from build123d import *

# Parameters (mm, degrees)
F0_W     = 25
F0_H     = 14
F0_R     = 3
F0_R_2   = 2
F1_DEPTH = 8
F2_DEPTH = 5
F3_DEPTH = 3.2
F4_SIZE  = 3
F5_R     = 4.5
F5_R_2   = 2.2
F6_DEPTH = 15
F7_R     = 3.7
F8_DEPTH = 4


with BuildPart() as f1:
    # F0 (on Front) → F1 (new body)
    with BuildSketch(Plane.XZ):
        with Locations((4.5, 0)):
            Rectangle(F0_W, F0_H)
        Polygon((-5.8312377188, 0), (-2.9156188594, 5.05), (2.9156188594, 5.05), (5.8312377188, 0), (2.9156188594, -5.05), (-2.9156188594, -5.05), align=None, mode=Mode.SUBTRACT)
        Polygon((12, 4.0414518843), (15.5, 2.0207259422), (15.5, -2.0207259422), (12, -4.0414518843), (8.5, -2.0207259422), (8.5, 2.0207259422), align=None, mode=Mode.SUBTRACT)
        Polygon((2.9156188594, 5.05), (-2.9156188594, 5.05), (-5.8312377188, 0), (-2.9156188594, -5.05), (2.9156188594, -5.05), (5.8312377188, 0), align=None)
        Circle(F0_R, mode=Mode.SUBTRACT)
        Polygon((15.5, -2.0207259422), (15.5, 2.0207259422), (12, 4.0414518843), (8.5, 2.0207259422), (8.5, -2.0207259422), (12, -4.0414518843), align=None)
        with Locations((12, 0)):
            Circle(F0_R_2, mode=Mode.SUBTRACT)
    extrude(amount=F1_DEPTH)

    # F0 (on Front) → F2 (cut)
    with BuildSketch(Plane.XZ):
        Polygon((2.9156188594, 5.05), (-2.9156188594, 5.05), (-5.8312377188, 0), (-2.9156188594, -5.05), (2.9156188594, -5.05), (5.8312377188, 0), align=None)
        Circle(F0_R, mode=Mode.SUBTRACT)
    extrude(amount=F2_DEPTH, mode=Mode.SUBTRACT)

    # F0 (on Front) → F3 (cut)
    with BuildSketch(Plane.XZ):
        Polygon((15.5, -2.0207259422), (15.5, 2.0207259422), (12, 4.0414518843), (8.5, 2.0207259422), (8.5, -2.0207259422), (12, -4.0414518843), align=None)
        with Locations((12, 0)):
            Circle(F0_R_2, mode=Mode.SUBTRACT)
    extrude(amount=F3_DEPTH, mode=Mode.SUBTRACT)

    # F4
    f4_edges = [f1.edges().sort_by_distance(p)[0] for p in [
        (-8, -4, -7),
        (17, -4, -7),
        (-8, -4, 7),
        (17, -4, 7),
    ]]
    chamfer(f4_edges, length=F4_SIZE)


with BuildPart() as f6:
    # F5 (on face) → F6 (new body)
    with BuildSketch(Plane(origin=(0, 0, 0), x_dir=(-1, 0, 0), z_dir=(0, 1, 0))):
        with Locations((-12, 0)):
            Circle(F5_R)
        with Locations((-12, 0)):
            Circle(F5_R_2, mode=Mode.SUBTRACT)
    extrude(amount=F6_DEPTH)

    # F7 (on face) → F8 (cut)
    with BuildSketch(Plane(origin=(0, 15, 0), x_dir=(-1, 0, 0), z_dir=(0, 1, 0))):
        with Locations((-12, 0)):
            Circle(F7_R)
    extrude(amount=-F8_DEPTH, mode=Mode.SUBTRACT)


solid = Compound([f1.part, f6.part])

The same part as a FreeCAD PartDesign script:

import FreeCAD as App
import Part
import Sketcher
Q = App.Units.Quantity


def edges_at(feature, points):
    """Names of the edges that pass closest to the given points."""
    edges = feature.Shape.Edges
    near = lambda p: min(range(len(edges)), key=lambda i: edges[i].distToShape(Part.Vertex(*p))[0])
    return sorted({f"Edge{near(p) + 1}" for p in points})

doc = App.newDocument("Part")
body = doc.addObject("PartDesign::Body", "Body")

sketch1 = doc.addObject("Sketcher::SketchObject", "Sketch")
body.addObject(sketch1)
sketch1.AttachmentSupport = (doc.XZ_Plane, [""])
sketch1.MapMode = "FlatFace"
sketch1.addGeometry([
    Part.LineSegment(App.Vector(-8, 7, 0), App.Vector(-8, -7, 0)),
    Part.LineSegment(App.Vector(-8, -7, 0), App.Vector(17, -7, 0)),
    Part.LineSegment(App.Vector(17, -7, 0), App.Vector(17, 7, 0)),
    Part.LineSegment(App.Vector(17, 7, 0), App.Vector(-8, 7, 0)),
    Part.Circle(App.Vector(0, 0, 0), App.Vector(0, 0, 1), 3),
    Part.Circle(App.Vector(12, 0, 0), App.Vector(0, 0, 1), 2),
], False)
sketch1.addConstraint([
    Sketcher.Constraint("Coincident", 0, 2, 1, 1),
    Sketcher.Constraint("Coincident", 1, 2, 2, 1),
    Sketcher.Constraint("Coincident", 2, 2, 3, 1),
    Sketcher.Constraint("Coincident", 3, 2, 0, 1),
    Sketcher.Constraint("Vertical", 0),
    Sketcher.Constraint("Horizontal", 1),
    Sketcher.Constraint("Vertical", 2),
    Sketcher.Constraint("Horizontal", 3),
    Sketcher.Constraint("Coincident", 4, 3, -1, 1),
    Sketcher.Constraint("PointOnObject", 5, 3, -1),
    Sketcher.Constraint("Diameter", 4, Q("6 mm")),
    Sketcher.Constraint("Diameter", 5, Q("4 mm")),
    Sketcher.Constraint("DistanceX", 1, 1, 1, 2, Q("25 mm")),
    Sketcher.Constraint("DistanceY", 0, 2, 0, 1, Q("14 mm")),
    Sketcher.Constraint("DistanceX", -1, 1, 5, 3, Q("12 mm")),
    Sketcher.Constraint("DistanceX", 0, 2, -1, 1, Q("8 mm")),
    Sketcher.Constraint("DistanceY", 0, 2, -1, 1, Q("7 mm")),
])
pad1 = doc.addObject("PartDesign::Pad", "Pad")
body.addObject(pad1)
pad1.Profile = sketch1
pad1.Length = 8

sketch2 = doc.addObject("Sketcher::SketchObject", "Sketch001")
body.addObject(sketch2)
sketch2.AttachmentSupport = (doc.XZ_Plane, [""])
sketch2.MapMode = "FlatFace"
sketch2.addGeometry([
    Part.LineSegment(App.Vector(2.9, 5, 0), App.Vector(-2.9, 5, 0)),
    Part.LineSegment(App.Vector(-2.9, 5, 0), App.Vector(-5.8, 0, 0)),
    Part.LineSegment(App.Vector(-5.8, 0, 0), App.Vector(-2.9, -5, 0)),
    Part.LineSegment(App.Vector(-2.9, -5, 0), App.Vector(2.9, -5, 0)),
    Part.LineSegment(App.Vector(2.9, -5, 0), App.Vector(5.8, 0, 0)),
    Part.LineSegment(App.Vector(5.8, 0, 0), App.Vector(2.9, 5, 0)),
    Part.Circle(App.Vector(0, 0, 0), App.Vector(0, 0, 1), 3),
], False)
sketch2.addConstraint([
    Sketcher.Constraint("Coincident", 0, 2, 1, 1),
    Sketcher.Constraint("Coincident", 1, 2, 2, 1),
    Sketcher.Constraint("Coincident", 2, 2, 3, 1),
    Sketcher.Constraint("Coincident", 3, 2, 4, 1),
    Sketcher.Constraint("Coincident", 4, 2, 5, 1),
    Sketcher.Constraint("Coincident", 5, 2, 0, 1),
    Sketcher.Constraint("Horizontal", 0),
    Sketcher.Constraint("Horizontal", 3),
    Sketcher.Constraint("Coincident", 6, 3, -1, 1),
    Sketcher.Constraint("Symmetric", 0, 2, 3, 2, -1, 1),
    Sketcher.Constraint("Symmetric", 1, 2, 4, 2, -1, 1),
    Sketcher.Constraint("PointOnObject", 1, 2, -1),
    Sketcher.Constraint("Parallel", 2, 5),
    Sketcher.Constraint("Vertical", 0, 2, 2, 2),
    Sketcher.Constraint("Diameter", 6, Q("6 mm")),
    Sketcher.Constraint("Angle", 1, Q("-120 deg")),
    Sketcher.Constraint("DistanceY", 2, 2, 0, 2, Q("10.1 mm")),
    Sketcher.Constraint("DistanceX", 0, 2, 0, 1, Q("5.831238 mm")),
])
pocket1 = doc.addObject("PartDesign::Pocket", "Pocket")
body.addObject(pocket1)
pocket1.Profile = sketch2
pocket1.Length = 5
pocket1.Reversed = True

sketch3 = doc.addObject("Sketcher::SketchObject", "Sketch002")
body.addObject(sketch3)
sketch3.AttachmentSupport = (doc.XZ_Plane, [""])
sketch3.MapMode = "FlatFace"
sketch3.addGeometry([
    Part.LineSegment(App.Vector(15.5, -2, 0), App.Vector(15.5, 2, 0)),
    Part.LineSegment(App.Vector(15.5, 2, 0), App.Vector(12, 4, 0)),
    Part.LineSegment(App.Vector(12, 4, 0), App.Vector(8.5, 2, 0)),
    Part.LineSegment(App.Vector(8.5, 2, 0), App.Vector(8.5, -2, 0)),
    Part.LineSegment(App.Vector(8.5, -2, 0), App.Vector(12, -4, 0)),
    Part.LineSegment(App.Vector(12, -4, 0), App.Vector(15.5, -2, 0)),
    Part.Circle(App.Vector(12, 0, 0), App.Vector(0, 0, 1), 2),
], False)
sketch3.addConstraint([
    Sketcher.Constraint("Coincident", 0, 2, 1, 1),
    Sketcher.Constraint("Coincident", 1, 2, 2, 1),
    Sketcher.Constraint("Coincident", 2, 2, 3, 1),
    Sketcher.Constraint("Coincident", 3, 2, 4, 1),
    Sketcher.Constraint("Coincident", 4, 2, 5, 1),
    Sketcher.Constraint("Coincident", 5, 2, 0, 1),
    Sketcher.Constraint("Vertical", 0),
    Sketcher.Constraint("Vertical", 3),
    Sketcher.Constraint("Symmetric", 1, 2, 4, 2, -1),
    Sketcher.Constraint("PointOnObject", 6, 3, -1),
    Sketcher.Constraint("Parallel", 1, 4),
    Sketcher.Constraint("Parallel", 2, 5),
    Sketcher.Constraint("Horizontal", 0, 2, 2, 2),
    Sketcher.Constraint("Horizontal", 3, 2, 5, 2),
    Sketcher.Constraint("Vertical", 6, 3, 1, 2),
    Sketcher.Constraint("Diameter", 6, Q("4 mm")),
    Sketcher.Constraint("Angle", 1, Q("150 deg")),
    Sketcher.Constraint("DistanceX", -1, 1, 6, 3, Q("12 mm")),
    Sketcher.Constraint("DistanceX", 2, 2, 0, 2, Q("7 mm")),
    Sketcher.Constraint("DistanceY", 0, 1, 0, 2, Q("4.041452 mm")),
])
pocket2 = doc.addObject("PartDesign::Pocket", "Pocket001")
body.addObject(pocket2)
pocket2.Profile = sketch3
pocket2.Length = 3.2
pocket2.Reversed = True
doc.recompute()

chamfer = doc.addObject("PartDesign::Chamfer", "Chamfer")
body.addObject(chamfer)
chamfer.Base = (pocket2, edges_at(pocket2, [
    (-8, -4, -7),
    (17, -4, -7),
    (-8, -4, 7),
    (17, -4, 7),
]))
chamfer.Size = 3
body2 = doc.addObject("PartDesign::Body", "Body001")

sketch4 = doc.addObject("Sketcher::SketchObject", "Sketch003")
body2.addObject(sketch4)
sketch4.AttachmentSupport = (doc.getObject("XZ_Plane001"), [""])
sketch4.MapMode = "FlatFace"
sketch4.addGeometry([
    Part.Circle(App.Vector(12, 0, 0), App.Vector(0, 0, 1), 4.5),
    Part.Circle(App.Vector(12, 0, 0), App.Vector(0, 0, 1), 2.2),
], False)
sketch4.addConstraint([
    Sketcher.Constraint("Coincident", 1, 3, 0, 3),
    Sketcher.Constraint("PointOnObject", 0, 3, -1),
    Sketcher.Constraint("Diameter", 0, Q("9 mm")),
    Sketcher.Constraint("Diameter", 1, Q("4.4 mm")),
    Sketcher.Constraint("DistanceX", -1, 1, 0, 3, Q("12 mm")),
])
pad2 = doc.addObject("PartDesign::Pad", "Pad001")
body2.addObject(pad2)
pad2.Profile = sketch4
pad2.Length = 15
pad2.Reversed = True

sketch5 = doc.addObject("Sketcher::SketchObject", "Sketch004")
body2.addObject(sketch5)
sketch5.AttachmentSupport = (doc.getObject("XZ_Plane001"), [""])
sketch5.MapMode = "FlatFace"
sketch5.AttachmentOffset = App.Placement(App.Vector(0, 0, -15), App.Rotation())
sketch5.addGeometry(Part.Circle(App.Vector(12, 0, 0), App.Vector(0, 0, 1), 3.7), False)
sketch5.addConstraint([
    Sketcher.Constraint("PointOnObject", 0, 3, -1),
    Sketcher.Constraint("Diameter", 0, Q("7.4 mm")),
    Sketcher.Constraint("DistanceX", -1, 1, 0, 3, Q("12 mm")),
])
pocket3 = doc.addObject("PartDesign::Pocket", "Pocket002")
body2.addObject(pocket3)
pocket3.Profile = sketch5
pocket3.Length = 4
pocket3.Reversed = True

doc.recompute()
